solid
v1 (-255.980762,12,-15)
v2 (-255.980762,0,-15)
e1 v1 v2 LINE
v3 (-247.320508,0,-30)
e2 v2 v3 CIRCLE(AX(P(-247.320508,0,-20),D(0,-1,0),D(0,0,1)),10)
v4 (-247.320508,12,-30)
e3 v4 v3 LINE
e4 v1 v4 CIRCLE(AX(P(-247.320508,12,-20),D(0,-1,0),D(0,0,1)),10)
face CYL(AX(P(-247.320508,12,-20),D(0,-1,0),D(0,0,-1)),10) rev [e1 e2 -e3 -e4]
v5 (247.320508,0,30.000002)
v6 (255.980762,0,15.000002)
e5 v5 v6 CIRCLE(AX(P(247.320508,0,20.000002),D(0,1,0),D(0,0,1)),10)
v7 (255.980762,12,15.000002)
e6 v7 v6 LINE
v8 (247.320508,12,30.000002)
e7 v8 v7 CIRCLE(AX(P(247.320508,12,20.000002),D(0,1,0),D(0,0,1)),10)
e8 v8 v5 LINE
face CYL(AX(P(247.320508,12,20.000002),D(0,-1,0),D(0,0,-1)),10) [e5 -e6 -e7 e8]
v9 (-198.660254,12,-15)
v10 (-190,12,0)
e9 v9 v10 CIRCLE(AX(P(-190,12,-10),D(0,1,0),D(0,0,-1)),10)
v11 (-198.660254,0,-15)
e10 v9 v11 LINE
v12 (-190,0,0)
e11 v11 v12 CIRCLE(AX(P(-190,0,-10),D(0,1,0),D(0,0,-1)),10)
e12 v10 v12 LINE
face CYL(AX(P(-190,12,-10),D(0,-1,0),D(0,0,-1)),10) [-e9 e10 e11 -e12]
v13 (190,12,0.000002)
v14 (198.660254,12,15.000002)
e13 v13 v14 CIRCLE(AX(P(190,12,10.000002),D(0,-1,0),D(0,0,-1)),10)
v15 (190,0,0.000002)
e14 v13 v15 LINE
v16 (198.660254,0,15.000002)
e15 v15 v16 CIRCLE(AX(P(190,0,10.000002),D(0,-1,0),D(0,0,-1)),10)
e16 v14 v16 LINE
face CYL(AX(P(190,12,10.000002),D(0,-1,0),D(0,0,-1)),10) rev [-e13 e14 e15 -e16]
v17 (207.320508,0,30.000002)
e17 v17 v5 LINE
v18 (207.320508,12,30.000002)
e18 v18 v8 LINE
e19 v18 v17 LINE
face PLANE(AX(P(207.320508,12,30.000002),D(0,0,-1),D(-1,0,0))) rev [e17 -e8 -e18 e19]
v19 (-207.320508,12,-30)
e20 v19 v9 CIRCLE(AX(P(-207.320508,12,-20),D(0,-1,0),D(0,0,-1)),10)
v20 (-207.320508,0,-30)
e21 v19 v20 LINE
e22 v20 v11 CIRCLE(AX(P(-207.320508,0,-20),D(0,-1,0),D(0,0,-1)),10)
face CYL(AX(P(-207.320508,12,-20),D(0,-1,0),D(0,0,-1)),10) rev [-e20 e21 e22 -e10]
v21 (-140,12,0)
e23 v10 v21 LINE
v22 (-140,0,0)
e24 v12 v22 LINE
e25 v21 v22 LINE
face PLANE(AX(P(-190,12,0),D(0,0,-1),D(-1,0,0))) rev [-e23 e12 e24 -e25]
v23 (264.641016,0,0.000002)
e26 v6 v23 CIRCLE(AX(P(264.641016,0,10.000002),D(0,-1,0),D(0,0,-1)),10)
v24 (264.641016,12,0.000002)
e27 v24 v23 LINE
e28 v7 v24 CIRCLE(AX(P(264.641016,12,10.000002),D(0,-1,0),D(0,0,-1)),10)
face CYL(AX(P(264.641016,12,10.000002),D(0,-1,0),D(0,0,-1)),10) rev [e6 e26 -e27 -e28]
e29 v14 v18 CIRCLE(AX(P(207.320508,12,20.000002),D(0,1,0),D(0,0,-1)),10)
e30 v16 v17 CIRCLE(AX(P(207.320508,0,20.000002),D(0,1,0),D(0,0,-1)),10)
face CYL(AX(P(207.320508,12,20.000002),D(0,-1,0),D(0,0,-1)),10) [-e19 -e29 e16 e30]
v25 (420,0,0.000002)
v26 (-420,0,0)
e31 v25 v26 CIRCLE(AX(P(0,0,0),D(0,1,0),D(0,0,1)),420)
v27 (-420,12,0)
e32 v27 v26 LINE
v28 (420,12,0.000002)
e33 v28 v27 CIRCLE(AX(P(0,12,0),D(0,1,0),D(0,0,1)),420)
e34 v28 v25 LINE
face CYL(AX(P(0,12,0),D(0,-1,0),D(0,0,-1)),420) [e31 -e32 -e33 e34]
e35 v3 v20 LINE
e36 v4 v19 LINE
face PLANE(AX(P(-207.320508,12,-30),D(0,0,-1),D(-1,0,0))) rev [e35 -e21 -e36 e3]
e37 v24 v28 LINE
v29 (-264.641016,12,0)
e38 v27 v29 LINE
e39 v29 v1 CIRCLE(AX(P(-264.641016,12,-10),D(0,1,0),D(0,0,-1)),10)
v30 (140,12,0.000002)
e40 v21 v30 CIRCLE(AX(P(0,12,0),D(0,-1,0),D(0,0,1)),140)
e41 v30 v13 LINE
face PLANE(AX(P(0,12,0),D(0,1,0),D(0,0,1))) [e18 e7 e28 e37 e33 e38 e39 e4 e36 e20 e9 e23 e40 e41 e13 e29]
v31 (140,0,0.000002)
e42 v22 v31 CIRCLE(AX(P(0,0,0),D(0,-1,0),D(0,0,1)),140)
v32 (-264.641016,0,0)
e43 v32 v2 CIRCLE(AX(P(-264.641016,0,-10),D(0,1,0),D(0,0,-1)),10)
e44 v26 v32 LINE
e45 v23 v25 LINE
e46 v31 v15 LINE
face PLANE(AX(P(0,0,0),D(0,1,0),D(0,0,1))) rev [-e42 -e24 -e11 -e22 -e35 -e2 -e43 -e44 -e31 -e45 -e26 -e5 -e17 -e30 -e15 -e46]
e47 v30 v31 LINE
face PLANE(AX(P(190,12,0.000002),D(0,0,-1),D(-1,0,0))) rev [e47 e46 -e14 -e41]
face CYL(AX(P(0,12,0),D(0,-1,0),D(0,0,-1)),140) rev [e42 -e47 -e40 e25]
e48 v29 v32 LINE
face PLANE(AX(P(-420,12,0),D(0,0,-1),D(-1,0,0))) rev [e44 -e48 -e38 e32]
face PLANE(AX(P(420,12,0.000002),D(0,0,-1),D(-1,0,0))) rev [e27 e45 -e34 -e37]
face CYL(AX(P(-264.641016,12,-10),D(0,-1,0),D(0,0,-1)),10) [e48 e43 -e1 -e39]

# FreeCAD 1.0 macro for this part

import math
import FreeCAD as App
import Part
import Sketcher
Q = App.Units.Quantity

doc = App.newDocument("Part")
body = doc.addObject("PartDesign::Body", "Body")

sketch1 = body.newObject("Sketcher::SketchObject", "Sketch")
sketch1.AttachmentSupport = (doc.getObject("XZ_Plane"), [""])
sketch1.MapMode = "FlatFace"
sketch1.addGeometry([
    Part.LineSegment(App.Vector(-420, 0, 0), App.Vector(-265, 0, 0)),
    Part.ArcOfCircle(Part.Circle(App.Vector(-265, -10, 0), App.Vector(0, 0, 1), 10), math.radians(-30), math.radians(90)),
    Part.ArcOfCircle(Part.Circle(App.Vector(-247, -20, 0), App.Vector(0, 0, 1), 10), math.radians(150), math.radians(270)),
    Part.LineSegment(App.Vector(-247, -30, 0), App.Vector(-207, -30, 0)),
    Part.ArcOfCircle(Part.Circle(App.Vector(-207, -20, 0), App.Vector(0, 0, 1), 10), math.radians(-90), math.radians(30)),
    Part.ArcOfCircle(Part.Circle(App.Vector(-190, -10, 0), App.Vector(0, 0, 1), 10), math.radians(90), math.radians(210)),
    Part.LineSegment(App.Vector(-190, 0, 0), App.Vector(-140, 0, 0)),
    Part.ArcOfCircle(Part.Circle(App.Vector(0, 0, 0), App.Vector(0, 0, 1), 140), math.radians(180), math.radians(360)),
    Part.LineSegment(App.Vector(140, 0, 0), App.Vector(190, 0, 0)),
    Part.ArcOfCircle(Part.Circle(App.Vector(190, 10, 0), App.Vector(0, 0, 1), 10), math.radians(-90), math.radians(30)),
    Part.ArcOfCircle(Part.Circle(App.Vector(207, 20, 0), App.Vector(0, 0, 1), 10), math.radians(90), math.radians(210)),
    Part.LineSegment(App.Vector(207, 30, 0), App.Vector(247, 30, 0)),
    Part.ArcOfCircle(Part.Circle(App.Vector(247, 20, 0), App.Vector(0, 0, 1), 10), math.radians(-30), math.radians(90)),
    Part.ArcOfCircle(Part.Circle(App.Vector(265, 10, 0), App.Vector(0, 0, 1), 10), math.radians(150), math.radians(270)),
    Part.LineSegment(App.Vector(265, 0, 0), App.Vector(420, 0, 0)),
    Part.ArcOfCircle(Part.Circle(App.Vector(0, 0, 0), App.Vector(0, 0, 1), 420), math.radians(180), math.radians(360)),
], False)
sketch1.addConstraint([
    Sketcher.Constraint("Tangent", 0, 2, 1, 2),
    Sketcher.Constraint("Tangent", 1, 1, 2, 1),
    Sketcher.Constraint("Tangent", 2, 2, 3, 1),
    Sketcher.Constraint("Tangent", 3, 2, 4, 1),
    Sketcher.Constraint("Tangent", 4, 2, 5, 2),
    Sketcher.Constraint("Tangent", 5, 1, 6, 1),
    Sketcher.Constraint("Coincident", 6, 2, 7, 1),
    Sketcher.Constraint("Coincident", 7, 2, 8, 1),
    Sketcher.Constraint("Tangent", 8, 2, 9, 1),
    Sketcher.Constraint("Tangent", 9, 2, 10, 2),
    Sketcher.Constraint("Tangent", 10, 1, 11, 1),
    Sketcher.Constraint("Tangent", 11, 2, 12, 2),
    Sketcher.Constraint("Tangent", 12, 1, 13, 1),
    Sketcher.Constraint("Tangent", 13, 2, 14, 1),
    Sketcher.Constraint("Coincident", 14, 2, 15, 2),
    Sketcher.Constraint("Coincident", 15, 1, 0, 1),
    Sketcher.Constraint("Horizontal", 0),
    Sketcher.Constraint("Horizontal", 3),
    Sketcher.Constraint("Horizontal", 6),
    Sketcher.Constraint("Horizontal", 8),
    Sketcher.Constraint("Horizontal", 11),
    Sketcher.Constraint("Horizontal", 14),
    Sketcher.Constraint("Coincident", 7, 3, -1, 1),
    Sketcher.Constraint("Coincident", 15, 3, -1, 1),
    Sketcher.Constraint("Equal", 1, 2),
    Sketcher.Constraint("Equal", 2, 4),
    Sketcher.Constraint("Equal", 4, 5),
    Sketcher.Constraint("Equal", 5, 9),
    Sketcher.Constraint("Equal", 9, 10),
    Sketcher.Constraint("Equal", 10, 12),
    Sketcher.Constraint("Equal", 12, 13),
    Sketcher.Constraint("Symmetric", 5, 3, 9, 3, -1, 1),
    Sketcher.Constraint("Symmetric", 2, 3, 12, 3, -1, 1),
    Sketcher.Constraint("Symmetric", 0, 2, 13, 2, -2),
    Sketcher.Constraint("PointOnObject", 5, 1, -1),
    Sketcher.Constraint("Radius", 1, Q("10 mm")),
    Sketcher.Constraint("Radius", 7, Q("140 mm")),
    Sketcher.Constraint("Radius", 15, Q("420 mm")),
    Sketcher.Constraint("DistanceX", 3, 1, 3, 2, Q("40 mm")),
    Sketcher.Constraint("DistanceX", 6, 1, 6, 2, Q("50 mm")),
    Sketcher.Constraint("DistanceY", 2, 3, -1, 1, Q("20 mm")),
])
pad1 = body.newObject("PartDesign::Pad", "Pad")
pad1.Profile = sketch1
pad1.Length = 12
pad1.Reversed = True

doc.recompute()
